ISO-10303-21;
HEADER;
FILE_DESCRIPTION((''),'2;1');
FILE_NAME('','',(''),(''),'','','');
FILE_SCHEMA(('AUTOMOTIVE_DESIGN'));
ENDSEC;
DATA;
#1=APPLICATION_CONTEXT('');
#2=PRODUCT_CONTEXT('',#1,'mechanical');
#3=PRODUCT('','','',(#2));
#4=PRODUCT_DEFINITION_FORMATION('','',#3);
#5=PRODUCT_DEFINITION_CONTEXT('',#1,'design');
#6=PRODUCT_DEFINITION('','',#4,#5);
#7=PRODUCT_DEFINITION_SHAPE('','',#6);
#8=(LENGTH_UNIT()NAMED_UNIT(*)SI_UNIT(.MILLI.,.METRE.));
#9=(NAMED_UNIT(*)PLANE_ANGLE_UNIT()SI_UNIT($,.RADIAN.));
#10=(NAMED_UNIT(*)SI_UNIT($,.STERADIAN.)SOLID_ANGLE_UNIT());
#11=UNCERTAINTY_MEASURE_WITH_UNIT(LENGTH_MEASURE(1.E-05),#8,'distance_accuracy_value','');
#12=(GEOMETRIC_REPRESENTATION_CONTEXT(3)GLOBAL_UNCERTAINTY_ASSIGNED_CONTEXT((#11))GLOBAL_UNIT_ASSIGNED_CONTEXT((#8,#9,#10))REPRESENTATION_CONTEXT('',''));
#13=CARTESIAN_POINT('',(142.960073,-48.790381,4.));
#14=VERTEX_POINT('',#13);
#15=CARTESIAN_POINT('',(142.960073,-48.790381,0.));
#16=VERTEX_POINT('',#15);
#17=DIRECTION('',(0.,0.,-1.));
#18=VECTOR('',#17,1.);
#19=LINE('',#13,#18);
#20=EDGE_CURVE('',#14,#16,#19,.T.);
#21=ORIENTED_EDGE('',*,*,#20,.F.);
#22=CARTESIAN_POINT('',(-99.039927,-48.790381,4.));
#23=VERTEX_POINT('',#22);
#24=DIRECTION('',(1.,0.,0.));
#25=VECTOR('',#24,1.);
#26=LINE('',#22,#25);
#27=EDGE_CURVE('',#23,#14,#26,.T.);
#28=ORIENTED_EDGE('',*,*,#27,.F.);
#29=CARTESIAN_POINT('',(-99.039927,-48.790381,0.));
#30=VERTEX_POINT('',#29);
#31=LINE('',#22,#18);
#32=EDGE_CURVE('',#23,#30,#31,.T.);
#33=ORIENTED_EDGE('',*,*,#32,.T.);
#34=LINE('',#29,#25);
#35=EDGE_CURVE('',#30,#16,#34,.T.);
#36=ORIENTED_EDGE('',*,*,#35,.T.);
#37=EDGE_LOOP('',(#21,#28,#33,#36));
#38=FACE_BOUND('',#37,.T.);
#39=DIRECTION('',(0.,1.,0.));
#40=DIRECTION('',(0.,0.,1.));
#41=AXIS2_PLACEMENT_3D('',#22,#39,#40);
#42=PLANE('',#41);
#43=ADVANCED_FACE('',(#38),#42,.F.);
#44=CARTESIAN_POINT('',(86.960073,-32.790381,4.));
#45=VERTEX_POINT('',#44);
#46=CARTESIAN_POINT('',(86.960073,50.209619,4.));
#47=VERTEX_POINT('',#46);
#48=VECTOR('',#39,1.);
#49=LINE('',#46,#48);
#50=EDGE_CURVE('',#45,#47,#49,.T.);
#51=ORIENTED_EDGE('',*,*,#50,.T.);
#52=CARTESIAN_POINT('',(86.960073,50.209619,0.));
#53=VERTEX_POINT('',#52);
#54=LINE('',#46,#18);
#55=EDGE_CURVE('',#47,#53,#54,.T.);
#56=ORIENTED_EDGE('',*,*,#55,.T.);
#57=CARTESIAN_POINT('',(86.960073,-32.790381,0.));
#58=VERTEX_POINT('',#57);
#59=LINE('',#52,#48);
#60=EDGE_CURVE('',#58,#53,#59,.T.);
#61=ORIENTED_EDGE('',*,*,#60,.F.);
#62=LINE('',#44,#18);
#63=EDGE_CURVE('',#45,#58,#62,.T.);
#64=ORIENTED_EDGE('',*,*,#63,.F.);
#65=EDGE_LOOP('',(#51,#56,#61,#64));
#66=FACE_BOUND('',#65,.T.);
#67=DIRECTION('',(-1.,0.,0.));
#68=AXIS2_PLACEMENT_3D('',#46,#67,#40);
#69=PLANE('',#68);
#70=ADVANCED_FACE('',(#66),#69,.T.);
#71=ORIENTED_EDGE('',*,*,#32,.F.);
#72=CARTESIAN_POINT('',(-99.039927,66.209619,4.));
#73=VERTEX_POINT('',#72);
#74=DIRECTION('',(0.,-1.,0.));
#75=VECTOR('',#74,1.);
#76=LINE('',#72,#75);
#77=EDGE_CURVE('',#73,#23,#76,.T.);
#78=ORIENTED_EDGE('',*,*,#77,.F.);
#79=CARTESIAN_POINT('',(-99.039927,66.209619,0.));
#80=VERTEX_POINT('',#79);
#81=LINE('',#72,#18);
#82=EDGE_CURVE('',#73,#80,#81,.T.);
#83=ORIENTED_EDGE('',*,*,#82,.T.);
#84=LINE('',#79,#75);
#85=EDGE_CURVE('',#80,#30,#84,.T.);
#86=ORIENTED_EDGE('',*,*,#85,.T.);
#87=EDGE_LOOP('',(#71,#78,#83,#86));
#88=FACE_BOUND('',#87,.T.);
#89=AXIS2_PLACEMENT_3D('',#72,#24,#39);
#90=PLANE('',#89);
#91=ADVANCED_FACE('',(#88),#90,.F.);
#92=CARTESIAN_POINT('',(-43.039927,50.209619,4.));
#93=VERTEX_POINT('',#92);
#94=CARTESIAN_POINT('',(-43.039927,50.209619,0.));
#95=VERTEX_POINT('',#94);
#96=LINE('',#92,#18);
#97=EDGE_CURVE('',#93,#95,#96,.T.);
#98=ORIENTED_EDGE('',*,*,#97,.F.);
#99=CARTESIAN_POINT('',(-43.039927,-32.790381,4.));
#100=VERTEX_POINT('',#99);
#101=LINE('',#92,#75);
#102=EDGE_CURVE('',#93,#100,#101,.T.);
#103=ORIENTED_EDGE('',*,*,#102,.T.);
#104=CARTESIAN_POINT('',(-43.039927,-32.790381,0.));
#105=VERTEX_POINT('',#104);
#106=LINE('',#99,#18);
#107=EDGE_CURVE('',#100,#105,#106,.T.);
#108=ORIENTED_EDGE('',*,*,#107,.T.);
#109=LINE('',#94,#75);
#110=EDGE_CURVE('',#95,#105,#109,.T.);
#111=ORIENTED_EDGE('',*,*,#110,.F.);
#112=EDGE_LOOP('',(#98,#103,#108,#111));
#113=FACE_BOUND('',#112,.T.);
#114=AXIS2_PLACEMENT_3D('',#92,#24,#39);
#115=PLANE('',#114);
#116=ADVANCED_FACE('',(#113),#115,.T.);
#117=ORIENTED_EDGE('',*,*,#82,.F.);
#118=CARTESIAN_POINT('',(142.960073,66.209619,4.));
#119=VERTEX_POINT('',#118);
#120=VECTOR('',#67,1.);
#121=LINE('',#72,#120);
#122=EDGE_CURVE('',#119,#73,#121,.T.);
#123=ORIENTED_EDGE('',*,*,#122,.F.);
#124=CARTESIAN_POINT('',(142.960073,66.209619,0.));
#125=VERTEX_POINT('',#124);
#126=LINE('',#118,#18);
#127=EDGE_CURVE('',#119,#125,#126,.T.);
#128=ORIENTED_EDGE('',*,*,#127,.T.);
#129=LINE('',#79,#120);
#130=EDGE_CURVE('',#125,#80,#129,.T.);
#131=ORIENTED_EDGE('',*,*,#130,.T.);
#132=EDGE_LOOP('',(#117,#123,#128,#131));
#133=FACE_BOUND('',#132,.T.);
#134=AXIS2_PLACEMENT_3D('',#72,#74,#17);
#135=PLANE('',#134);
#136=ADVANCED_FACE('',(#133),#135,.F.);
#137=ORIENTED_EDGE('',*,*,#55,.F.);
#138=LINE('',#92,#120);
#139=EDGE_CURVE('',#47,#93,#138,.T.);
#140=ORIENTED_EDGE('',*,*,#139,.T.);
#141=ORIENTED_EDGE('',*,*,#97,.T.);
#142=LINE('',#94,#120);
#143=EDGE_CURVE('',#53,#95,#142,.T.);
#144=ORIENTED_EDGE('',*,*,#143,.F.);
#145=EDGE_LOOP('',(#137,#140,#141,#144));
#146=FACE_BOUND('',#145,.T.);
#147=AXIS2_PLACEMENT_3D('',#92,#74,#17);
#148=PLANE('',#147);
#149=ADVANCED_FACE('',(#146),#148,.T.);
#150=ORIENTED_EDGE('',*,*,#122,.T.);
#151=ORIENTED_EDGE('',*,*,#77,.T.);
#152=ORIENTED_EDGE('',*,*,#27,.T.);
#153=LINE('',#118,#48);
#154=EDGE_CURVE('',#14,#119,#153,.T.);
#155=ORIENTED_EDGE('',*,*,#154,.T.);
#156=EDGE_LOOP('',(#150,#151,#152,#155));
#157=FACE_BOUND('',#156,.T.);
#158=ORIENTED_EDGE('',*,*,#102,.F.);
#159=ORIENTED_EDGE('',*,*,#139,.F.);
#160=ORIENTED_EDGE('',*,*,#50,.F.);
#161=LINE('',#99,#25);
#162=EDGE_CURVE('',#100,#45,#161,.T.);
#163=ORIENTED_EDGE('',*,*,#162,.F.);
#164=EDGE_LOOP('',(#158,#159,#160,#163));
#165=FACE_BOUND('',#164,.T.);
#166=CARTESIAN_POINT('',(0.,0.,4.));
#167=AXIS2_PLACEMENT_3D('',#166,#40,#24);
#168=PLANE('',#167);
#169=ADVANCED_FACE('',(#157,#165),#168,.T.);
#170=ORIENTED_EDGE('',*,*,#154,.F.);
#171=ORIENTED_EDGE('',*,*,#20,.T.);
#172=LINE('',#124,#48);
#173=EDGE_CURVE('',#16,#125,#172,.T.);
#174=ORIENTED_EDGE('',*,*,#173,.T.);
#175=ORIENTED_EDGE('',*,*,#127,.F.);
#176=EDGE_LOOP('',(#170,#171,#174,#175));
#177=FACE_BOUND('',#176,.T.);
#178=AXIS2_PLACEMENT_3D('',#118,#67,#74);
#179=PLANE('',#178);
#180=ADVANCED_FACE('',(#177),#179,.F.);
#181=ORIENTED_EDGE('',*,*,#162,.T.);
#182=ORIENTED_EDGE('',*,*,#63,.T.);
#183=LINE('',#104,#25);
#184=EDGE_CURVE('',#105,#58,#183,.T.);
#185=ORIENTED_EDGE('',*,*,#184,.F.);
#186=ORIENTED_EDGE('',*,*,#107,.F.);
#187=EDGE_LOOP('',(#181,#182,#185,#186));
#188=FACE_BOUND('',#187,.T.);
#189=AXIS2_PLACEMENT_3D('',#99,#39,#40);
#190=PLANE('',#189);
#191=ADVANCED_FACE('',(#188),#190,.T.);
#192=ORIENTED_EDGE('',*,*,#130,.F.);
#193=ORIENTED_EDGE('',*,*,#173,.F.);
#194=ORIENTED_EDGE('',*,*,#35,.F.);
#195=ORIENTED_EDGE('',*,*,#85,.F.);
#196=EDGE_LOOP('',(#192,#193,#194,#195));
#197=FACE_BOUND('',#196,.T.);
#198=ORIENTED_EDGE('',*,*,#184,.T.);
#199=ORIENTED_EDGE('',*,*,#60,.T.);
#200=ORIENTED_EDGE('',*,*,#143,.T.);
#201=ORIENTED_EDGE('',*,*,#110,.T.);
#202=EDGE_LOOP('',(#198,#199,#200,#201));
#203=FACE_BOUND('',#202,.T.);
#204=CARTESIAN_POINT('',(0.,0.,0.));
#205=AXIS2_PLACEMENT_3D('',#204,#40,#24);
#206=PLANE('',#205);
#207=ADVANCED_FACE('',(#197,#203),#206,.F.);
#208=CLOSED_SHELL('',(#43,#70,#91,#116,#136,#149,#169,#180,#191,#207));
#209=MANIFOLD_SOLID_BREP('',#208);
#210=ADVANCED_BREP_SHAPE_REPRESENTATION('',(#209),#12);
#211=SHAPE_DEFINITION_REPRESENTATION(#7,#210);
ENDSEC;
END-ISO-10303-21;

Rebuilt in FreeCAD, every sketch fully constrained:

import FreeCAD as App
import Part
import Sketcher
Q = App.Units.Quantity

doc = App.newDocument("Part")
body = doc.addObject("PartDesign::Body", "Body")

sketch1 = body.newObject("Sketcher::SketchObject", "Sketch")
sketch1.AttachmentSupport = (doc.getObject("XY_Plane"), [""])
sketch1.MapMode = "FlatFace"
sketch1.addGeometry([
    Part.LineSegment(App.Vector(-99, 66, 0), App.Vector(-99, -49, 0)),
    Part.LineSegment(App.Vector(-99, -49, 0), App.Vector(143, -49, 0)),
    Part.LineSegment(App.Vector(143, -49, 0), App.Vector(143, 66, 0)),
    Part.LineSegment(App.Vector(143, 66, 0), App.Vector(-99, 66, 0)),
    Part.LineSegment(App.Vector(87, -33, 0), App.Vector(-43, -33, 0)),
    Part.LineSegment(App.Vector(-43, -33, 0), App.Vector(-43, 50, 0)),
    Part.LineSegment(App.Vector(-43, 50, 0), App.Vector(87, 50, 0)),
    Part.LineSegment(App.Vector(87, 50, 0), App.Vector(87, -33, 0)),
], False)
sketch1.addConstraint([
    Sketcher.Constraint("Coincident", 0, 2, 1, 1),
    Sketcher.Constraint("Coincident", 1, 2, 2, 1),
    Sketcher.Constraint("Coincident", 2, 2, 3, 1),
    Sketcher.Constraint("Coincident", 3, 2, 0, 1),
    Sketcher.Constraint("Coincident", 4, 2, 5, 1),
    Sketcher.Constraint("Coincident", 5, 2, 6, 1),
    Sketcher.Constraint("Coincident", 6, 2, 7, 1),
    Sketcher.Constraint("Coincident", 7, 2, 4, 1),
    Sketcher.Constraint("Vertical", 0),
    Sketcher.Constraint("Horizontal", 1),
    Sketcher.Constraint("Vertical", 2),
    Sketcher.Constraint("Horizontal", 3),
    Sketcher.Constraint("Horizontal", 4),
    Sketcher.Constraint("Vertical", 5),
    Sketcher.Constraint("Horizontal", 6),
    Sketcher.Constraint("Vertical", 7),
    Sketcher.Constraint("DistanceX", 1, 1, 1, 2, Q("242 mm")),
    Sketcher.Constraint("DistanceX", 4, 2, 4, 1, Q("130 mm")),
    Sketcher.Constraint("DistanceY", 0, 2, 0, 1, Q("115 mm")),
    Sketcher.Constraint("DistanceY", 5, 1, 5, 2, Q("83 mm")),
    Sketcher.Constraint("DistanceX", 0, 2, 4, 2, Q("56 mm")),
    Sketcher.Constraint("DistanceY", 0, 2, 4, 2, Q("16 mm")),
    Sketcher.Constraint("DistanceY", 0, 2, -1, 1, Q("48.790381 mm")),
    Sketcher.Constraint("DistanceX", 0, 2, -1, 1, Q("99.039927 mm")),
])
pad1 = body.newObject("PartDesign::Pad", "Pad")
pad1.Profile = sketch1
pad1.Length = 4

doc.recompute()
